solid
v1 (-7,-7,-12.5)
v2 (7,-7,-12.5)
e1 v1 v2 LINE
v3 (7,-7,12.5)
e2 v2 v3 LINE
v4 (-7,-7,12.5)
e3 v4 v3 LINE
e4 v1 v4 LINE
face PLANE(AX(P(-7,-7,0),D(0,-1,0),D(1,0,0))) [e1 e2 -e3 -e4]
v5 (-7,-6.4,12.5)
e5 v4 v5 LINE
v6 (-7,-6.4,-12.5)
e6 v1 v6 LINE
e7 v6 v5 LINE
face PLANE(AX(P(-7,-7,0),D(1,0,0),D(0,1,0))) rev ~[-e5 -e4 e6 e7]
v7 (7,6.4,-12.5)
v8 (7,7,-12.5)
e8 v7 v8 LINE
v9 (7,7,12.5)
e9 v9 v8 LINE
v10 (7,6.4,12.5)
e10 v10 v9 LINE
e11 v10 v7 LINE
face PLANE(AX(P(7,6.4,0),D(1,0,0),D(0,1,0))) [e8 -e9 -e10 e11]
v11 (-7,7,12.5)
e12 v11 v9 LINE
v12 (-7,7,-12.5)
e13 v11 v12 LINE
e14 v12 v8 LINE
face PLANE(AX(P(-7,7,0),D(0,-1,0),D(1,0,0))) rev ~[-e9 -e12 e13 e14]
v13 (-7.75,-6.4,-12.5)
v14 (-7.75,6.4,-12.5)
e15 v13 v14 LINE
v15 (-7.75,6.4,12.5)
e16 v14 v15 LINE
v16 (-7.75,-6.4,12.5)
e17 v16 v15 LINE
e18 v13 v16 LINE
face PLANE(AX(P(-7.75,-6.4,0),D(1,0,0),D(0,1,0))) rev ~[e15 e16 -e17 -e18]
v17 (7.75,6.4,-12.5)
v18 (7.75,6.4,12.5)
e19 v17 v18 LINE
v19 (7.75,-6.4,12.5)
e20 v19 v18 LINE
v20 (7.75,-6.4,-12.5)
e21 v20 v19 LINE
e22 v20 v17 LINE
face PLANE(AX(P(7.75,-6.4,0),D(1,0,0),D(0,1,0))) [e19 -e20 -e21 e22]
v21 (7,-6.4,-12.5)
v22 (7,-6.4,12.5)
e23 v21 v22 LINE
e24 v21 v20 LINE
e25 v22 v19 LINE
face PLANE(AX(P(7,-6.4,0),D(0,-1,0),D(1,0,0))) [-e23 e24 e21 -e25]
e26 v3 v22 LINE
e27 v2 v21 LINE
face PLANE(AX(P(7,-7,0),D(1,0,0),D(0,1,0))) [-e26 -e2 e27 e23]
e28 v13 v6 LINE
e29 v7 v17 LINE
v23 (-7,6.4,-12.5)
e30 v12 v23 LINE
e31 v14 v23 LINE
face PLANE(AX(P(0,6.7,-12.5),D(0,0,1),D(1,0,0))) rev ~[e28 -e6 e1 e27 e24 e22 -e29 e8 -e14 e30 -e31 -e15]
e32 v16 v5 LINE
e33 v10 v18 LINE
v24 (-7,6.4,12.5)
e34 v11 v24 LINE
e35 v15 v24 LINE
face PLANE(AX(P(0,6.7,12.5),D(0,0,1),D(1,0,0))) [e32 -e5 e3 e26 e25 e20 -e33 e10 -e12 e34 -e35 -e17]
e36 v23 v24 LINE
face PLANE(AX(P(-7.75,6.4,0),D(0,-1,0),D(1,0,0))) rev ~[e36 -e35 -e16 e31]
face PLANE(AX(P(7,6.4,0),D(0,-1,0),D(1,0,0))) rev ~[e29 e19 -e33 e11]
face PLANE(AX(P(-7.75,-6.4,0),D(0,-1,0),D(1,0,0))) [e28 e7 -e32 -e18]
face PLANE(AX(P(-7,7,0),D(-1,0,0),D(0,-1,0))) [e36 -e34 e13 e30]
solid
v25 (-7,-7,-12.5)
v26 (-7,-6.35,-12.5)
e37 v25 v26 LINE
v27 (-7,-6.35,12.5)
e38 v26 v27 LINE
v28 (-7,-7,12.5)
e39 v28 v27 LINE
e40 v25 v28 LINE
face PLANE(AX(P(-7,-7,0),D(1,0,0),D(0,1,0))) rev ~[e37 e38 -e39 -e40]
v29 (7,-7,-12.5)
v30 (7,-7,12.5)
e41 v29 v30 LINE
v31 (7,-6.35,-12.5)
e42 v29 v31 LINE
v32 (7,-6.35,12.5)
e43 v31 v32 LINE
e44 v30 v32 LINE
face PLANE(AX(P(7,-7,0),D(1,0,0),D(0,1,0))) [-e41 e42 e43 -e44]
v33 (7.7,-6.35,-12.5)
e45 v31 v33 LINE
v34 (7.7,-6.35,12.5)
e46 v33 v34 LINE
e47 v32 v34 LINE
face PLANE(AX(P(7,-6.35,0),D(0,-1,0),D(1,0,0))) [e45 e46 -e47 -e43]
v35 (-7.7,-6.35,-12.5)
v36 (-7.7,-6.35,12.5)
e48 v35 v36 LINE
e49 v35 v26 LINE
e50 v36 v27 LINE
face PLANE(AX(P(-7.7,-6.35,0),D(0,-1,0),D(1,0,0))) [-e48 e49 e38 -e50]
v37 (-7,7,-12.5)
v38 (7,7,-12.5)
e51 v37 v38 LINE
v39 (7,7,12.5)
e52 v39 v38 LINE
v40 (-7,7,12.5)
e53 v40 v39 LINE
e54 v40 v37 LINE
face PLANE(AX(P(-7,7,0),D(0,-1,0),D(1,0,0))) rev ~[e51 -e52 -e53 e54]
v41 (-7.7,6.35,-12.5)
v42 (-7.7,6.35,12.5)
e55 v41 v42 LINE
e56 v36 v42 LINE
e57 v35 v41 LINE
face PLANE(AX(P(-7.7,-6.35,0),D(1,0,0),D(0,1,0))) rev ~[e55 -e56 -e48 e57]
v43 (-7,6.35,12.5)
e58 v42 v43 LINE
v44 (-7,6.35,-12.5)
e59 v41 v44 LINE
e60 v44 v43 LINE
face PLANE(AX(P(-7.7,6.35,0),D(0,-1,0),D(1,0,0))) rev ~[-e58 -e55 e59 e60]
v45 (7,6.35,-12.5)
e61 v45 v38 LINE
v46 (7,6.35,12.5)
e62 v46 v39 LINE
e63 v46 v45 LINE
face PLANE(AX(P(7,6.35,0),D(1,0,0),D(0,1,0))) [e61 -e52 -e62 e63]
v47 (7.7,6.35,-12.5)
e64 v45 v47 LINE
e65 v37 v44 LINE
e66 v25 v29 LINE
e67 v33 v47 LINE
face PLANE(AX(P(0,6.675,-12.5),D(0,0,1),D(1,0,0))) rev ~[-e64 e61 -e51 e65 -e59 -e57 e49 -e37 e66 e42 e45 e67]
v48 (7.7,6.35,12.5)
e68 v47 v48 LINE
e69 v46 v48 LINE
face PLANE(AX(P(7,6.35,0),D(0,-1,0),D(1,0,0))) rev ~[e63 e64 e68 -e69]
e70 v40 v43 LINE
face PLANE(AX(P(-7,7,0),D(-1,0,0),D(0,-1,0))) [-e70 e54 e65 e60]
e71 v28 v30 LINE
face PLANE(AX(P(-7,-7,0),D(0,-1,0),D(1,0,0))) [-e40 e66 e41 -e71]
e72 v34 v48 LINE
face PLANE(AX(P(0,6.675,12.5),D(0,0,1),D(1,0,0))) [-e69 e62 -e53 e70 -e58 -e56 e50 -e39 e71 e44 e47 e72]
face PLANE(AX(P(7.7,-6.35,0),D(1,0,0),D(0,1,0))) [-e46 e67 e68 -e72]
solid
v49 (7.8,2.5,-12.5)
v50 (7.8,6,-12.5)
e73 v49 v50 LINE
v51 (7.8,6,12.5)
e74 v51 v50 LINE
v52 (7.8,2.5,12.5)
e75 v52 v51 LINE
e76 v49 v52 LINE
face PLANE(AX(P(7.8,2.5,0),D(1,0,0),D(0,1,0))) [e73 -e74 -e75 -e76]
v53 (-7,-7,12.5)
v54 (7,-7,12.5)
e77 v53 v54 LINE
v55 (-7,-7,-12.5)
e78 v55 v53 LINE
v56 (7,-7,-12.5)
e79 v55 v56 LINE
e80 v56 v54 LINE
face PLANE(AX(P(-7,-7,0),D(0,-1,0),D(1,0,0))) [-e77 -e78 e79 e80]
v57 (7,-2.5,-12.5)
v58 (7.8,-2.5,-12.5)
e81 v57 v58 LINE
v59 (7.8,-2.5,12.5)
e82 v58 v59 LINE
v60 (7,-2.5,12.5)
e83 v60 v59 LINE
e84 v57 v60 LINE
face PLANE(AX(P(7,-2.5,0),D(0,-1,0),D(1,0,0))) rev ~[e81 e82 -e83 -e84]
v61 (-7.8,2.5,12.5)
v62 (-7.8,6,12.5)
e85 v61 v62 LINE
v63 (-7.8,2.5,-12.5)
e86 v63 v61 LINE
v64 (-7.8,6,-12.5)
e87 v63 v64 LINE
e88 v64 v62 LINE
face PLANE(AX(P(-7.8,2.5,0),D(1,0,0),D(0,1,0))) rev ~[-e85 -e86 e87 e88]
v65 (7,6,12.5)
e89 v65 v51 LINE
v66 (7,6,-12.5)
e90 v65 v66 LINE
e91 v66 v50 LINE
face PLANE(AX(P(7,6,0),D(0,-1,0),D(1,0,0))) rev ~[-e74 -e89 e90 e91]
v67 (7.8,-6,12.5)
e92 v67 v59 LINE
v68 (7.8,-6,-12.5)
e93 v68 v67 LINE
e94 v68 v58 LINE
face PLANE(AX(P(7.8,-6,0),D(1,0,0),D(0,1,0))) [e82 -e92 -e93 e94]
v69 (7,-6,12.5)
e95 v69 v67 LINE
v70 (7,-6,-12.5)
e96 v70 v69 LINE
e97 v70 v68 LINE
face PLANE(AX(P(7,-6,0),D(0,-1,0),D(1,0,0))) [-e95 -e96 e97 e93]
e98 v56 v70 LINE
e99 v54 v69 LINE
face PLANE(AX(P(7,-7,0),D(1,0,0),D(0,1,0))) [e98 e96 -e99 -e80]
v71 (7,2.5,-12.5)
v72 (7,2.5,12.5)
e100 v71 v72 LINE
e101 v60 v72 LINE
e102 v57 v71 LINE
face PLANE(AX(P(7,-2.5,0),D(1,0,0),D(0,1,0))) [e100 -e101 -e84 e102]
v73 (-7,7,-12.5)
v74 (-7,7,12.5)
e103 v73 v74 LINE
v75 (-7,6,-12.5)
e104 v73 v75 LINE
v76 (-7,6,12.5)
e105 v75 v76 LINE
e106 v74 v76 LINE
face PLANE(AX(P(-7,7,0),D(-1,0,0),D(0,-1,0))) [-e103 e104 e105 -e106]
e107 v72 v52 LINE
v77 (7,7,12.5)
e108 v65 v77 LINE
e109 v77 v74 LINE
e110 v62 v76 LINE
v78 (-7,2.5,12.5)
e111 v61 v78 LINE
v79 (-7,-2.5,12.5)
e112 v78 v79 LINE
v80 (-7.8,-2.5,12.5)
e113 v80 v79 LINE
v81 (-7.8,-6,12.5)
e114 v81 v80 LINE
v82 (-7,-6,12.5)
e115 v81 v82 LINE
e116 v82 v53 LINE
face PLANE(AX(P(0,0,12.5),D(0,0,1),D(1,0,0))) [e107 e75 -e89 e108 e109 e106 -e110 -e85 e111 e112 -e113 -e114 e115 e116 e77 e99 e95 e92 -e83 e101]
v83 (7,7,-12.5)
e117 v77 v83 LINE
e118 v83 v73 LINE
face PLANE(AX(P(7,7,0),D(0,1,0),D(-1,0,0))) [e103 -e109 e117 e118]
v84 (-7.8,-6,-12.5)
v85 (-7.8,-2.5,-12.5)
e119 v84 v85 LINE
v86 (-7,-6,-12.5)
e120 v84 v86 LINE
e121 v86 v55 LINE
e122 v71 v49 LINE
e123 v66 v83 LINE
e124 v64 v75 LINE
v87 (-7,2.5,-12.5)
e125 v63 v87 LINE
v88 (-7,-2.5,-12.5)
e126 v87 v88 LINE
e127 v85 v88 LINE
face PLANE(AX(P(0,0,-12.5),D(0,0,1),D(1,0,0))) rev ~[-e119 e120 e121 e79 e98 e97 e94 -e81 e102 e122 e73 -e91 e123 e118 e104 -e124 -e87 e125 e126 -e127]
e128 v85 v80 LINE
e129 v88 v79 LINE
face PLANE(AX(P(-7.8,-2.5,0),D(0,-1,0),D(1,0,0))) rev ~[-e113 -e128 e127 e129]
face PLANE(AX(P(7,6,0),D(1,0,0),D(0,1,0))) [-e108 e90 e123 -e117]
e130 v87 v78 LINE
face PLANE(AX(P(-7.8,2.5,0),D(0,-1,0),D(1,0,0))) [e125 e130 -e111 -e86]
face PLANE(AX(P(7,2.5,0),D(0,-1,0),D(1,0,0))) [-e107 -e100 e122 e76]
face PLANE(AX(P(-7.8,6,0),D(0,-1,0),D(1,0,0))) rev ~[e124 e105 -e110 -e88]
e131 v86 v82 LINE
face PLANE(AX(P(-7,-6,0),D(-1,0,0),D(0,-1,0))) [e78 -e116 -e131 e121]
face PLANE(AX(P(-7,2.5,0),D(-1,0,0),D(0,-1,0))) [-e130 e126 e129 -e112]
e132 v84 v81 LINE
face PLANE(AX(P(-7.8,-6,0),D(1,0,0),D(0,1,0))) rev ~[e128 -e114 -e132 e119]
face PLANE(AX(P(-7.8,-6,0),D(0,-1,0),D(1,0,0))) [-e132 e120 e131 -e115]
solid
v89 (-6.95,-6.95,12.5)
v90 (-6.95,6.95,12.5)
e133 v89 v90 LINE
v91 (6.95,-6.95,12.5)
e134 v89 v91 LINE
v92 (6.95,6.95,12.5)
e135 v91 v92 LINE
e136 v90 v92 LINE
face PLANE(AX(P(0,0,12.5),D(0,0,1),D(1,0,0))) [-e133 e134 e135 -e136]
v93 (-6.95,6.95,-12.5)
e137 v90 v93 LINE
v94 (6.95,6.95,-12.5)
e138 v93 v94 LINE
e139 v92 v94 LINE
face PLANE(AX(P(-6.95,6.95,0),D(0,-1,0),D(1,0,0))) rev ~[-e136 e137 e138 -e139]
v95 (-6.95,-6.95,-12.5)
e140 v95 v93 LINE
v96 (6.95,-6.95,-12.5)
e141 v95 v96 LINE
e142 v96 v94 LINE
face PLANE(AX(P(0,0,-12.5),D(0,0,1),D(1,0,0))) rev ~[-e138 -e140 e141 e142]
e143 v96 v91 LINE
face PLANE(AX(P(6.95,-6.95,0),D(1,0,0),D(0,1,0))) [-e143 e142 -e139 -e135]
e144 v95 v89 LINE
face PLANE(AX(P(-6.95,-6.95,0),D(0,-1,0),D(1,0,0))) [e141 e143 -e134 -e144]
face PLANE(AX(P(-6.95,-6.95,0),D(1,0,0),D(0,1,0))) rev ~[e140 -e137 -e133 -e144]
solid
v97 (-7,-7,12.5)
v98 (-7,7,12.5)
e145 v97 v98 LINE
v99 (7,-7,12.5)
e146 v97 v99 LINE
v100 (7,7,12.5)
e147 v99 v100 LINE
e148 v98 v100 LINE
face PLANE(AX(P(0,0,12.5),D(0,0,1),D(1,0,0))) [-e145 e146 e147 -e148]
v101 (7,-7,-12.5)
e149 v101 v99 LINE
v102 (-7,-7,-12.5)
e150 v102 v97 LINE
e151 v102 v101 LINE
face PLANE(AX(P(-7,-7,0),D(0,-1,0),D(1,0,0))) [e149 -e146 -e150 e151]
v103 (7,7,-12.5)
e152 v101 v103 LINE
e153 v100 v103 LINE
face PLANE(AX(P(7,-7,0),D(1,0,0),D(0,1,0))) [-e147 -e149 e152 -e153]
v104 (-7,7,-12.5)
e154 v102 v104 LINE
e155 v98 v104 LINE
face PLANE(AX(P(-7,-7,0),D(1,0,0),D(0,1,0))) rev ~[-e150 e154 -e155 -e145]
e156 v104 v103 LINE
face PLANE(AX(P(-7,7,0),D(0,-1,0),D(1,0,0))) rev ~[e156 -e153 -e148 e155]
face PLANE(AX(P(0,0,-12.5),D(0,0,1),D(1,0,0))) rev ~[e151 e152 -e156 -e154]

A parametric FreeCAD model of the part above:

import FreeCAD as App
import Part
import Sketcher

V = App.Vector

doc = App.newDocument("Part")
body = doc.addObject("PartDesign::Body", "Body")

# Sketch on XY plane
sketch1 = body.newObject("Sketcher::SketchObject", "Sketch")
sketch1.AttachmentSupport = (doc.getObject("XY_Plane"), [""])
sketch1.MapMode = "FlatFace"
sketch1.addGeometry([
    Part.LineSegment(V(-7, 7, 0), V(-7, -7, 0)),
    Part.LineSegment(V(-7, -7, 0), V(7, -7, 0)),
    Part.LineSegment(V(7, -7, 0), V(7, 7, 0)),
    Part.LineSegment(V(7, 7, 0), V(-7, 7, 0)),
], False)
sketch1.addConstraint([
    Sketcher.Constraint("Coincident", 0, 2, 1, 1),
    Sketcher.Constraint("Coincident", 1, 2, 2, 1),
    Sketcher.Constraint("Coincident", 2, 2, 3, 1),
    Sketcher.Constraint("Coincident", 3, 2, 0, 1),
    Sketcher.Constraint("Vertical", 0),
    Sketcher.Constraint("Horizontal", 1),
    Sketcher.Constraint("Vertical", 2),
    Sketcher.Constraint("Horizontal", 3),
    Sketcher.Constraint("Symmetric", 0, 2, 2, 2, -1, 1),
    Sketcher.Constraint("Equal", 3, 0),
    Sketcher.Constraint("DistanceX", 1, 1, 1, 2, 14.0),
])
pad1 = body.newObject("PartDesign::Pad", "Pad")
pad1.Profile = sketch1
pad1.Length = 25
pad1.Midplane = True
body2 = doc.addObject("PartDesign::Body", "Body001")

# Sketch on XY plane
sketch2 = body2.newObject("Sketcher::SketchObject", "Sketch001")
sketch2.AttachmentSupport = (doc.getObject("XY_Plane001"), [""])
sketch2.MapMode = "FlatFace"
sketch2.addGeometry([
    Part.LineSegment(V(-7, 7, 0), V(-7, 6.4, 0)),  # 0
    Part.LineSegment(V(-7, 6.4, 0), V(-7.8, 6.4, 0)),  # 1
    Part.LineSegment(V(-7.8, 6.4, 0), V(-7.8, -6.4, 0)),  # 2
    Part.LineSegment(V(-7.8, -6.4, 0), V(-7, -6.4, 0)),  # 3
    Part.LineSegment(V(-7, -6.4, 0), V(-7, -7, 0)),  # 4
    Part.LineSegment(V(-7, -7, 0), V(7, -7, 0)),  # 5
    Part.LineSegment(V(7, -7, 0), V(7, -6.4, 0)),  # 6
    Part.LineSegment(V(7, -6.4, 0), V(7.8, -6.4, 0)),  # 7
    Part.LineSegment(V(7.8, -6.4, 0), V(7.8, 6.4, 0)),  # 8
    Part.LineSegment(V(7.8, 6.4, 0), V(7, 6.4, 0)),  # 9
    Part.LineSegment(V(7, 6.4, 0), V(7, 7, 0)),  # 10
    Part.LineSegment(V(7, 7, 0), V(-7, 7, 0)),  # 11
], False)
sketch2.addConstraint([
    Sketcher.Constraint("Coincident", 0, 2, 1, 1),
    Sketcher.Constraint("Coincident", 1, 2, 2, 1),
    Sketcher.Constraint("Coincident", 2, 2, 3, 1),
    Sketcher.Constraint("Coincident", 3, 2, 4, 1),
    Sketcher.Constraint("Coincident", 4, 2, 5, 1),
    Sketcher.Constraint("Coincident", 5, 2, 6, 1),
    Sketcher.Constraint("Coincident", 6, 2, 7, 1),
    Sketcher.Constraint("Coincident", 7, 2, 8, 1),
    Sketcher.Constraint("Coincident", 8, 2, 9, 1),
    Sketcher.Constraint("Coincident", 9, 2, 10, 1),
    Sketcher.Constraint("Coincident", 10, 2, 11, 1),
    Sketcher.Constraint("Coincident", 11, 2, 0, 1),
    Sketcher.Constraint("Vertical", 0),
    Sketcher.Constraint("Horizontal", 1),
    Sketcher.Constraint("Vertical", 2),
    Sketcher.Constraint("Horizontal", 3),
    Sketcher.Constraint("Vertical", 4),
    Sketcher.Constraint("Horizontal", 5),
    Sketcher.Constraint("Vertical", 6),
    Sketcher.Constraint("Horizontal", 7),
    Sketcher.Constraint("Vertical", 8),
    Sketcher.Constraint("Horizontal", 9),
    Sketcher.Constraint("Vertical", 10),
    Sketcher.Constraint("Horizontal", 11),
    Sketcher.Constraint("Symmetric", 0, 2, 6, 2, -1, 1),
    Sketcher.Constraint("Symmetric", 2, 2, 8, 2, -1, 1),
    Sketcher.Constraint("Symmetric", 4, 2, 10, 2, -1, 1),
    Sketcher.Constraint("Symmetric", 3, 2, 6, 2, -2),
    Sketcher.Constraint("DistanceX", 5, 1, 5, 2, 14.0),
    Sketcher.Constraint("DistanceY", 0, 2, 0, 1, 0.6),
    Sketcher.Constraint("DistanceY", 2, 2, 2, 1, 12.8),
    Sketcher.Constraint("DistanceX", 1, 2, 1, 1, 0.75),
])
pad2 = body2.newObject("PartDesign::Pad", "Pad001")
pad2.Profile = sketch2
pad2.Length = 25
pad2.Midplane = True
body3 = doc.addObject("PartDesign::Body", "Body002")

# Sketch on XY plane
sketch3 = body3.newObject("Sketcher::SketchObject", "Sketch002")
sketch3.AttachmentSupport = (doc.getObject("XY_Plane002"), [""])
sketch3.MapMode = "FlatFace"
sketch3.addGeometry([
    Part.LineSegment(V(7, 7, 0), V(-7, 7, 0)),  # 0
    Part.LineSegment(V(-7, 7, 0), V(-7, 6, 0)),  # 1
    Part.LineSegment(V(-7, 6, 0), V(-7.8, 6, 0)),  # 2
    Part.LineSegment(V(-7.8, 6, 0), V(-7.8, 2.5, 0)),  # 3
    Part.LineSegment(V(-7.8, 2.5, 0), V(-7, 2.5, 0)),  # 4
    Part.LineSegment(V(-7, 2.5, 0), V(-7, -2.5, 0)),  # 5
    Part.LineSegment(V(-7, -2.5, 0), V(-7.8, -2.5, 0)),  # 6
    Part.LineSegment(V(-7.8, -2.5, 0), V(-7.8, -6, 0)),  # 7
    Part.LineSegment(V(-7.8, -6, 0), V(-7, -6, 0)),  # 8
    Part.LineSegment(V(-7, -6, 0), V(-7, -7, 0)),  # 9
    Part.LineSegment(V(-7, -7, 0), V(7, -7, 0)),  # 10
    Part.LineSegment(V(7, -7, 0), V(7, -6, 0)),  # 11
    Part.LineSegment(V(7, -6, 0), V(7.8, -6, 0)),  # 12
    Part.LineSegment(V(7.8, -6, 0), V(7.8, -2.5, 0)),  # 13
    Part.LineSegment(V(7.8, -2.5, 0), V(7, -2.5, 0)),  # 14
    Part.LineSegment(V(7, -2.5, 0), V(7, 2.5, 0)),  # 15
    Part.LineSegment(V(7, 2.5, 0), V(7.8, 2.5, 0)),  # 16
    Part.LineSegment(V(7.8, 2.5, 0), V(7.8, 6, 0)),  # 17
    Part.LineSegment(V(7.8, 6, 0), V(7, 6, 0)),  # 18
    Part.LineSegment(V(7, 6, 0), V(7, 7, 0)),  # 19
], False)
sketch3.addConstraint([
    Sketcher.Constraint("Coincident", 0, 2, 1, 1),
    Sketcher.Constraint("Coincident", 1, 2, 2, 1),
    Sketcher.Constraint("Coincident", 2, 2, 3, 1),
    Sketcher.Constraint("Coincident", 3, 2, 4, 1),
    Sketcher.Constraint("Coincident", 4, 2, 5, 1),
    Sketcher.Constraint("Coincident", 5, 2, 6, 1),
    Sketcher.Constraint("Coincident", 6, 2, 7, 1),
    Sketcher.Constraint("Coincident", 7, 2, 8, 1),
    Sketcher.Constraint("Coincident", 8, 2, 9, 1),
    Sketcher.Constraint("Coincident", 9, 2, 10, 1),
    Sketcher.Constraint("Coincident", 10, 2, 11, 1),
    Sketcher.Constraint("Coincident", 11, 2, 12, 1),
    Sketcher.Constraint("Coincident", 12, 2, 13, 1),
    Sketcher.Constraint("Coincident", 13, 2, 14, 1),
    Sketcher.Constraint("Coincident", 14, 2, 15, 1),
    Sketcher.Constraint("Coincident", 15, 2, 16, 1),
    Sketcher.Constraint("Coincident", 16, 2, 17, 1),
    Sketcher.Constraint("Coincident", 17, 2, 18, 1),
    Sketcher.Constraint("Coincident", 18, 2, 19, 1),
    Sketcher.Constraint("Coincident", 19, 2, 0, 1),
    Sketcher.Constraint("Horizontal", 0),
    Sketcher.Constraint("Vertical", 1),
    Sketcher.Constraint("Horizontal", 2),
    Sketcher.Constraint("Vertical", 3),
    Sketcher.Constraint("Horizontal", 4),
    Sketcher.Constraint("Vertical", 5),
    Sketcher.Constraint("Horizontal", 6),
    Sketcher.Constraint("Vertical", 7),
    Sketcher.Constraint("Horizontal", 8),
    Sketcher.Constraint("Vertical", 9),
    Sketcher.Constraint("Horizontal", 10),
    Sketcher.Constraint("Vertical", 11),
    Sketcher.Constraint("Horizontal", 12),
    Sketcher.Constraint("Vertical", 13),
    Sketcher.Constraint("Horizontal", 14),
    Sketcher.Constraint("Vertical", 15),
    Sketcher.Constraint("Horizontal", 16),
    Sketcher.Constraint("Vertical", 17),
    Sketcher.Constraint("Horizontal", 18),
    Sketcher.Constraint("Vertical", 19),
    Sketcher.Constraint("Symmetric", 0, 2, 10, 2, -1, 1),
    Sketcher.Constraint("Symmetric", 2, 2, 12, 2, -1, 1),
    Sketcher.Constraint("Symmetric", 4, 2, 14, 2, -1, 1),
    Sketcher.Constraint("Symmetric", 6, 2, 16, 2, -1, 1),
    Sketcher.Constraint("Symmetric", 8, 2, 18, 2, -1, 1),
    Sketcher.Constraint("Symmetric", 8, 2, 11, 2, -2),
    Sketcher.Constraint("Symmetric", 6, 2, 13, 2, -2),
    Sketcher.Constraint("Vertical", 1, 2, 4, 2),
    Sketcher.Constraint("DistanceX", 0, 2, 0, 1, 14.0),
    Sketcher.Constraint("DistanceY", 1, 2, 1, 1, 1.0),
    Sketcher.Constraint("DistanceY", 5, 2, 5, 1, 5.0),
    Sketcher.Constraint("DistanceX", 2, 2, 2, 1, 0.8),
    Sketcher.Constraint("DistanceY", 3, 2, 3, 1, 3.5),
])
pad3 = body3.newObject("PartDesign::Pad", "Pad002")
pad3.Profile = sketch3
pad3.Length = 25
pad3.Midplane = True
body4 = doc.addObject("PartDesign::Body", "Body003")

# Sketch on XY plane
sketch4 = body4.newObject("Sketcher::SketchObject", "Sketch003")
sketch4.AttachmentSupport = (doc.getObject("XY_Plane003"), [""])
sketch4.MapMode = "FlatFace"
sketch4.addGeometry([
    Part.LineSegment(V(-7, 7, 0), V(-7, -7, 0)),
    Part.LineSegment(V(-7, -7, 0), V(7, -7, 0)),
    Part.LineSegment(V(7, -7, 0), V(7, 7, 0)),
    Part.LineSegment(V(7, 7, 0), V(-7, 7, 0)),
], False)
sketch4.addConstraint([
    Sketcher.Constraint("Coincident", 0, 2, 1, 1),
    Sketcher.Constraint("Coincident", 1, 2, 2, 1),
    Sketcher.Constraint("Coincident", 2, 2, 3, 1),
    Sketcher.Constraint("Coincident", 3, 2, 0, 1),
    Sketcher.Constraint("Vertical", 0),
    Sketcher.Constraint("Horizontal", 1),
    Sketcher.Constraint("Vertical", 2),
    Sketcher.Constraint("Horizontal", 3),
    Sketcher.Constraint("Symmetric", 0, 2, 2, 2, -1, 1),
    Sketcher.Constraint("Equal", 3, 0),
    Sketcher.Constraint("DistanceX", 1, 1, 1, 2, 13.9),
])
pad4 = body4.newObject("PartDesign::Pad", "Pad003")
pad4.Profile = sketch4
pad4.Length = 25
pad4.Midplane = True
body5 = doc.addObject("PartDesign::Body", "Body004")

# Sketch on XY plane
sketch5 = body5.newObject("Sketcher::SketchObject", "Sketch004")
sketch5.AttachmentSupport = (doc.getObject("XY_Plane004"), [""])
sketch5.MapMode = "FlatFace"
sketch5.addGeometry([
    Part.LineSegment(V(-7, 7, 0), V(-7, 6.3, 0)),  # 0
    Part.LineSegment(V(-7, 6.3, 0), V(-7.7, 6.3, 0)),  # 1
    Part.LineSegment(V(-7.7, 6.3, 0), V(-7.7, -6.3, 0)),  # 2
    Part.LineSegment(V(-7.7, -6.3, 0), V(-7, -6.3, 0)),  # 3
    Part.LineSegment(V(-7, -6.3, 0), V(-7, -7, 0)),  # 4
    Part.LineSegment(V(-7, -7, 0), V(7, -7, 0)),  # 5
    Part.LineSegment(V(7, -7, 0), V(7, -6.3, 0)),  # 6
    Part.LineSegment(V(7, -6.3, 0), V(7.7, -6.3, 0)),  # 7
    Part.LineSegment(V(7.7, -6.3, 0), V(7.7, 6.3, 0)),  # 8
    Part.LineSegment(V(7.7, 6.3, 0), V(7, 6.3, 0)),  # 9
    Part.LineSegment(V(7, 6.3, 0), V(7, 7, 0)),  # 10
    Part.LineSegment(V(7, 7, 0), V(-7, 7, 0)),  # 11
], False)
sketch5.addConstraint([
    Sketcher.Constraint("Coincident", 0, 2, 1, 1),
    Sketcher.Constraint("Coincident", 1, 2, 2, 1),
    Sketcher.Constraint("Coincident", 2, 2, 3, 1),
    Sketcher.Constraint("Coincident", 3, 2, 4, 1),
    Sketcher.Constraint("Coincident", 4, 2, 5, 1),
    Sketcher.Constraint("Coincident", 5, 2, 6, 1),
    Sketcher.Constraint("Coincident", 6, 2, 7, 1),
    Sketcher.Constraint("Coincident", 7, 2, 8, 1),
    Sketcher.Constraint("Coincident", 8, 2, 9, 1),
    Sketcher.Constraint("Coincident", 9, 2, 10, 1),
    Sketcher.Constraint("Coincident", 10, 2, 11, 1),
    Sketcher.Constraint("Coincident", 11, 2, 0, 1),
    Sketcher.Constraint("Vertical", 0),
    Sketcher.Constraint("Horizontal", 1),
    Sketcher.Constraint("Vertical", 2),
    Sketcher.Constraint("Horizontal", 3),
    Sketcher.Constraint("Vertical", 4),
    Sketcher.Constraint("Horizontal", 5),
    Sketcher.Constraint("Vertical", 6),
    Sketcher.Constraint("Horizontal", 7),
    Sketcher.Constraint("Vertical", 8),
    Sketcher.Constraint("Horizontal", 9),
    Sketcher.Constraint("Vertical", 10),
    Sketcher.Constraint("Horizontal", 11),
    Sketcher.Constraint("Symmetric", 0, 2, 6, 2, -1, 1),
    Sketcher.Constraint("Symmetric", 2, 2, 8, 2, -1, 1),
    Sketcher.Constraint("Symmetric", 4, 2, 10, 2, -1, 1),
    Sketcher.Constraint("Symmetric", 3, 2, 6, 2, -2),
    Sketcher.Constraint("DistanceX", 5, 1, 5, 2, 14.0),
    Sketcher.Constraint("DistanceX", 1, 2, 1, 1, 0.7),
    Sketcher.Constraint("DistanceY", 2, 2, 2, 1, 12.7),
    Sketcher.Constraint("DistanceY", 4, 2, -1, 1, 7.0),
])
pad5 = body5.newObject("PartDesign::Pad", "Pad004")
pad5.Profile = sketch5
pad5.Length = 25
pad5.Midplane = True

doc.recompute()
